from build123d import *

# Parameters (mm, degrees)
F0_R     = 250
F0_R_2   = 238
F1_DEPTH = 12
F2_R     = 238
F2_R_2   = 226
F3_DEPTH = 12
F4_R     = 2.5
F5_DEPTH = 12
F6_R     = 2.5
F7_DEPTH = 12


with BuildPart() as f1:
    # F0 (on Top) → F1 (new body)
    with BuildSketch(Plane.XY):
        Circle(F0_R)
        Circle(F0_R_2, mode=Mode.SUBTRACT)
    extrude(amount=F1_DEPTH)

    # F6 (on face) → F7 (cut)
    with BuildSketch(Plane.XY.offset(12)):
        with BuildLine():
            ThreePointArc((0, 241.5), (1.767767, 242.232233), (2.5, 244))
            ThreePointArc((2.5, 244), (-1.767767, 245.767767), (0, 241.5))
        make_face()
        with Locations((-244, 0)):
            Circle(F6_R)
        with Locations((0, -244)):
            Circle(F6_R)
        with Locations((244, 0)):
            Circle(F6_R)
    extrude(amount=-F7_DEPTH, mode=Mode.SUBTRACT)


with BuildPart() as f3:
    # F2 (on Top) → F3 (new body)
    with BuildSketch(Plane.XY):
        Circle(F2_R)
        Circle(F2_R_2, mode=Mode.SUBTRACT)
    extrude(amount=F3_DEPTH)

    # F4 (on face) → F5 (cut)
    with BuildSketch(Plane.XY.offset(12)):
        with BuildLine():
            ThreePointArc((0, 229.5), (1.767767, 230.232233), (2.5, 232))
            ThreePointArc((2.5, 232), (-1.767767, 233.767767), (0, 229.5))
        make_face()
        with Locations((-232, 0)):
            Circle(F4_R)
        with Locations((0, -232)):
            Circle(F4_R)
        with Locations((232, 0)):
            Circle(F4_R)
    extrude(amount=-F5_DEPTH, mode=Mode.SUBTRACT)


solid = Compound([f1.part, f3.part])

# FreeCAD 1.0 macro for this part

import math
import FreeCAD as App
import Part
import Sketcher
Q = App.Units.Quantity

doc = App.newDocument("Part")
body = doc.addObject("PartDesign::Body", "Body")

sketch1 = body.newObject("Sketcher::SketchObject", "Sketch")
sketch1.AttachmentSupport = (doc.getObject("XY_Plane"), [""])
sketch1.MapMode = "FlatFace"
sketch1.addGeometry(Part.Circle(App.Vector(0, 0, 0), App.Vector(0, 0, 1), 250), False)
sketch1.addGeometry(Part.Circle(App.Vector(0, 0, 0), App.Vector(0, 0, 1), 238), False)
sketch1.addConstraint(Sketcher.Constraint("Coincident", 0, 3, -1, 1))
sketch1.addConstraint(Sketcher.Constraint("Coincident", 1, 3, -1, 1))
sketch1.addConstraint(Sketcher.Constraint("Diameter", 0, Q("500 mm")))
sketch1.addConstraint(Sketcher.Constraint("Diameter", 1, Q("476 mm")))
pad1 = body.newObject("PartDesign::Pad", "Pad")
pad1.Profile = sketch1
pad1.Length = 12

sketch2 = body.newObject("Sketcher::SketchObject", "Sketch001")
sketch2.AttachmentSupport = (doc.getObject("XY_Plane"), [""])
sketch2.MapMode = "FlatFace"
sketch2.AttachmentOffset = App.Placement(App.Vector(0, 0, 12), App.Rotation())
sketch2.addGeometry(Part.ArcOfCircle(Part.Circle(App.Vector(0, 244, 0), App.Vector(0, 0, 1), 2.5), math.radians(-90), math.radians(0)), False)
sketch2.addGeometry(Part.ArcOfCircle(Part.Circle(App.Vector(0, 244, 0), App.Vector(0, 0, 1), 2.5), math.radians(0), math.radians(270)), False)
sketch2.addGeometry(Part.Circle(App.Vector(-244, 0, 0), App.Vector(0, 0, 1), 2.5), False)
sketch2.addGeometry(Part.Circle(App.Vector(0, -244, 0), App.Vector(0, 0, 1), 2.5), False)
sketch2.addGeometry(Part.Circle(App.Vector(244, 0, 0), App.Vector(0, 0, 1), 2.5), False)
sketch2.addConstraint(Sketcher.Constraint("Tangent", 0, 1, 1, 2))
sketch2.addConstraint(Sketcher.Constraint("Coincident", 1, 1, 0, 2))
sketch2.addConstraint(Sketcher.Constraint("Equal", 1, 2))
sketch2.addConstraint(Sketcher.Constraint("Equal", 2, 3))
sketch2.addConstraint(Sketcher.Constraint("Equal", 3, 4))
sketch2.addConstraint(Sketcher.Constraint("Symmetric", 0, 3, 3, 3, -1, 1))
sketch2.addConstraint(Sketcher.Constraint("Symmetric", 2, 3, 4, 3, -1, 1))
sketch2.addConstraint(Sketcher.Constraint("PointOnObject", 0, 3, -2))
sketch2.addConstraint(Sketcher.Constraint("PointOnObject", 2, 3, -1))
sketch2.addConstraint(Sketcher.Constraint("PointOnObject", 0, 1, -2))
sketch2.addConstraint(Sketcher.Constraint("Horizontal", 0, 3, 1, 1))
sketch2.addConstraint(Sketcher.Constraint("Diameter", 2, Q("5 mm")))
sketch2.addConstraint(Sketcher.Constraint("DistanceY", -1, 1, 0, 3, Q("244 mm")))
sketch2.addConstraint(Sketcher.Constraint("DistanceX", 2, 3, -1, 1, Q("244 mm")))
pocket1 = body.newObject("PartDesign::Pocket", "Pocket")
pocket1.Profile = sketch2
pocket1.Length = 12
body2 = doc.addObject("PartDesign::Body", "Body001")

sketch3 = body2.newObject("Sketcher::SketchObject", "Sketch002")
sketch3.AttachmentSupport = (doc.getObject("XY_Plane001"), [""])
sketch3.MapMode = "FlatFace"
sketch3.addGeometry(Part.Circle(App.Vector(0, 0, 0), App.Vector(0, 0, 1), 238), False)
sketch3.addGeometry(Part.Circle(App.Vector(0, 0, 0), App.Vector(0, 0, 1), 226), False)
sketch3.addConstraint(Sketcher.Constraint("Coincident", 0, 3, -1, 1))
sketch3.addConstraint(Sketcher.Constraint("Coincident", 1, 3, -1, 1))
sketch3.addConstraint(Sketcher.Constraint("Diameter", 0, Q("476 mm")))
sketch3.addConstraint(Sketcher.Constraint("Diameter", 1, Q("452 mm")))
pad2 = body2.newObject("PartDesign::Pad", "Pad001")
pad2.Profile = sketch3
pad2.Length = 12

sketch4 = body2.newObject("Sketcher::SketchObject", "Sketch003")
sketch4.AttachmentSupport = (doc.getObject("XY_Plane001"), [""])
sketch4.MapMode = "FlatFace"
sketch4.AttachmentOffset = App.Placement(App.Vector(0, 0, 12), App.Rotation())
sketch4.addGeometry(Part.ArcOfCircle(Part.Circle(App.Vector(0, 232, 0), App.Vector(0, 0, 1), 2.5), math.radians(-90), math.radians(0)), False)
sketch4.addGeometry(Part.ArcOfCircle(Part.Circle(App.Vector(0, 232, 0), App.Vector(0, 0, 1), 2.5), math.radians(0), math.radians(270)), False)
sketch4.addGeometry(Part.Circle(App.Vector(-232, 0, 0), App.Vector(0, 0, 1), 2.5), False)
sketch4.addGeometry(Part.Circle(App.Vector(0, -232, 0), App.Vector(0, 0, 1), 2.5), False)
sketch4.addGeometry(Part.Circle(App.Vector(232, 0, 0), App.Vector(0, 0, 1), 2.5), False)
sketch4.addConstraint(Sketcher.Constraint("Tangent", 0, 1, 1, 2))
sketch4.addConstraint(Sketcher.Constraint("Coincident", 1, 1, 0, 2))
sketch4.addConstraint(Sketcher.Constraint("Equal", 1, 2))
sketch4.addConstraint(Sketcher.Constraint("Equal", 2, 3))
sketch4.addConstraint(Sketcher.Constraint("Equal", 3, 4))
sketch4.addConstraint(Sketcher.Constraint("Symmetric", 0, 3, 3, 3, -1, 1))
sketch4.addConstraint(Sketcher.Constraint("Symmetric", 2, 3, 4, 3, -1, 1))
sketch4.addConstraint(Sketcher.Constraint("PointOnObject", 0, 3, -2))
sketch4.addConstraint(Sketcher.Constraint("PointOnObject", 2, 3, -1))
sketch4.addConstraint(Sketcher.Constraint("PointOnObject", 0, 1, -2))
sketch4.addConstraint(Sketcher.Constraint("Horizontal", 0, 3, 1, 1))
sketch4.addConstraint(Sketcher.Constraint("Diameter", 2, Q("5 mm")))
sketch4.addConstraint(Sketcher.Constraint("DistanceY", -1, 1, 0, 3, Q("232 mm")))
sketch4.addConstraint(Sketcher.Constraint("DistanceX", 2, 3, -1, 1, Q("232 mm")))
pocket2 = body2.newObject("PartDesign::Pocket", "Pocket001")
pocket2.Profile = sketch4
pocket2.Length = 12

doc.recompute()
